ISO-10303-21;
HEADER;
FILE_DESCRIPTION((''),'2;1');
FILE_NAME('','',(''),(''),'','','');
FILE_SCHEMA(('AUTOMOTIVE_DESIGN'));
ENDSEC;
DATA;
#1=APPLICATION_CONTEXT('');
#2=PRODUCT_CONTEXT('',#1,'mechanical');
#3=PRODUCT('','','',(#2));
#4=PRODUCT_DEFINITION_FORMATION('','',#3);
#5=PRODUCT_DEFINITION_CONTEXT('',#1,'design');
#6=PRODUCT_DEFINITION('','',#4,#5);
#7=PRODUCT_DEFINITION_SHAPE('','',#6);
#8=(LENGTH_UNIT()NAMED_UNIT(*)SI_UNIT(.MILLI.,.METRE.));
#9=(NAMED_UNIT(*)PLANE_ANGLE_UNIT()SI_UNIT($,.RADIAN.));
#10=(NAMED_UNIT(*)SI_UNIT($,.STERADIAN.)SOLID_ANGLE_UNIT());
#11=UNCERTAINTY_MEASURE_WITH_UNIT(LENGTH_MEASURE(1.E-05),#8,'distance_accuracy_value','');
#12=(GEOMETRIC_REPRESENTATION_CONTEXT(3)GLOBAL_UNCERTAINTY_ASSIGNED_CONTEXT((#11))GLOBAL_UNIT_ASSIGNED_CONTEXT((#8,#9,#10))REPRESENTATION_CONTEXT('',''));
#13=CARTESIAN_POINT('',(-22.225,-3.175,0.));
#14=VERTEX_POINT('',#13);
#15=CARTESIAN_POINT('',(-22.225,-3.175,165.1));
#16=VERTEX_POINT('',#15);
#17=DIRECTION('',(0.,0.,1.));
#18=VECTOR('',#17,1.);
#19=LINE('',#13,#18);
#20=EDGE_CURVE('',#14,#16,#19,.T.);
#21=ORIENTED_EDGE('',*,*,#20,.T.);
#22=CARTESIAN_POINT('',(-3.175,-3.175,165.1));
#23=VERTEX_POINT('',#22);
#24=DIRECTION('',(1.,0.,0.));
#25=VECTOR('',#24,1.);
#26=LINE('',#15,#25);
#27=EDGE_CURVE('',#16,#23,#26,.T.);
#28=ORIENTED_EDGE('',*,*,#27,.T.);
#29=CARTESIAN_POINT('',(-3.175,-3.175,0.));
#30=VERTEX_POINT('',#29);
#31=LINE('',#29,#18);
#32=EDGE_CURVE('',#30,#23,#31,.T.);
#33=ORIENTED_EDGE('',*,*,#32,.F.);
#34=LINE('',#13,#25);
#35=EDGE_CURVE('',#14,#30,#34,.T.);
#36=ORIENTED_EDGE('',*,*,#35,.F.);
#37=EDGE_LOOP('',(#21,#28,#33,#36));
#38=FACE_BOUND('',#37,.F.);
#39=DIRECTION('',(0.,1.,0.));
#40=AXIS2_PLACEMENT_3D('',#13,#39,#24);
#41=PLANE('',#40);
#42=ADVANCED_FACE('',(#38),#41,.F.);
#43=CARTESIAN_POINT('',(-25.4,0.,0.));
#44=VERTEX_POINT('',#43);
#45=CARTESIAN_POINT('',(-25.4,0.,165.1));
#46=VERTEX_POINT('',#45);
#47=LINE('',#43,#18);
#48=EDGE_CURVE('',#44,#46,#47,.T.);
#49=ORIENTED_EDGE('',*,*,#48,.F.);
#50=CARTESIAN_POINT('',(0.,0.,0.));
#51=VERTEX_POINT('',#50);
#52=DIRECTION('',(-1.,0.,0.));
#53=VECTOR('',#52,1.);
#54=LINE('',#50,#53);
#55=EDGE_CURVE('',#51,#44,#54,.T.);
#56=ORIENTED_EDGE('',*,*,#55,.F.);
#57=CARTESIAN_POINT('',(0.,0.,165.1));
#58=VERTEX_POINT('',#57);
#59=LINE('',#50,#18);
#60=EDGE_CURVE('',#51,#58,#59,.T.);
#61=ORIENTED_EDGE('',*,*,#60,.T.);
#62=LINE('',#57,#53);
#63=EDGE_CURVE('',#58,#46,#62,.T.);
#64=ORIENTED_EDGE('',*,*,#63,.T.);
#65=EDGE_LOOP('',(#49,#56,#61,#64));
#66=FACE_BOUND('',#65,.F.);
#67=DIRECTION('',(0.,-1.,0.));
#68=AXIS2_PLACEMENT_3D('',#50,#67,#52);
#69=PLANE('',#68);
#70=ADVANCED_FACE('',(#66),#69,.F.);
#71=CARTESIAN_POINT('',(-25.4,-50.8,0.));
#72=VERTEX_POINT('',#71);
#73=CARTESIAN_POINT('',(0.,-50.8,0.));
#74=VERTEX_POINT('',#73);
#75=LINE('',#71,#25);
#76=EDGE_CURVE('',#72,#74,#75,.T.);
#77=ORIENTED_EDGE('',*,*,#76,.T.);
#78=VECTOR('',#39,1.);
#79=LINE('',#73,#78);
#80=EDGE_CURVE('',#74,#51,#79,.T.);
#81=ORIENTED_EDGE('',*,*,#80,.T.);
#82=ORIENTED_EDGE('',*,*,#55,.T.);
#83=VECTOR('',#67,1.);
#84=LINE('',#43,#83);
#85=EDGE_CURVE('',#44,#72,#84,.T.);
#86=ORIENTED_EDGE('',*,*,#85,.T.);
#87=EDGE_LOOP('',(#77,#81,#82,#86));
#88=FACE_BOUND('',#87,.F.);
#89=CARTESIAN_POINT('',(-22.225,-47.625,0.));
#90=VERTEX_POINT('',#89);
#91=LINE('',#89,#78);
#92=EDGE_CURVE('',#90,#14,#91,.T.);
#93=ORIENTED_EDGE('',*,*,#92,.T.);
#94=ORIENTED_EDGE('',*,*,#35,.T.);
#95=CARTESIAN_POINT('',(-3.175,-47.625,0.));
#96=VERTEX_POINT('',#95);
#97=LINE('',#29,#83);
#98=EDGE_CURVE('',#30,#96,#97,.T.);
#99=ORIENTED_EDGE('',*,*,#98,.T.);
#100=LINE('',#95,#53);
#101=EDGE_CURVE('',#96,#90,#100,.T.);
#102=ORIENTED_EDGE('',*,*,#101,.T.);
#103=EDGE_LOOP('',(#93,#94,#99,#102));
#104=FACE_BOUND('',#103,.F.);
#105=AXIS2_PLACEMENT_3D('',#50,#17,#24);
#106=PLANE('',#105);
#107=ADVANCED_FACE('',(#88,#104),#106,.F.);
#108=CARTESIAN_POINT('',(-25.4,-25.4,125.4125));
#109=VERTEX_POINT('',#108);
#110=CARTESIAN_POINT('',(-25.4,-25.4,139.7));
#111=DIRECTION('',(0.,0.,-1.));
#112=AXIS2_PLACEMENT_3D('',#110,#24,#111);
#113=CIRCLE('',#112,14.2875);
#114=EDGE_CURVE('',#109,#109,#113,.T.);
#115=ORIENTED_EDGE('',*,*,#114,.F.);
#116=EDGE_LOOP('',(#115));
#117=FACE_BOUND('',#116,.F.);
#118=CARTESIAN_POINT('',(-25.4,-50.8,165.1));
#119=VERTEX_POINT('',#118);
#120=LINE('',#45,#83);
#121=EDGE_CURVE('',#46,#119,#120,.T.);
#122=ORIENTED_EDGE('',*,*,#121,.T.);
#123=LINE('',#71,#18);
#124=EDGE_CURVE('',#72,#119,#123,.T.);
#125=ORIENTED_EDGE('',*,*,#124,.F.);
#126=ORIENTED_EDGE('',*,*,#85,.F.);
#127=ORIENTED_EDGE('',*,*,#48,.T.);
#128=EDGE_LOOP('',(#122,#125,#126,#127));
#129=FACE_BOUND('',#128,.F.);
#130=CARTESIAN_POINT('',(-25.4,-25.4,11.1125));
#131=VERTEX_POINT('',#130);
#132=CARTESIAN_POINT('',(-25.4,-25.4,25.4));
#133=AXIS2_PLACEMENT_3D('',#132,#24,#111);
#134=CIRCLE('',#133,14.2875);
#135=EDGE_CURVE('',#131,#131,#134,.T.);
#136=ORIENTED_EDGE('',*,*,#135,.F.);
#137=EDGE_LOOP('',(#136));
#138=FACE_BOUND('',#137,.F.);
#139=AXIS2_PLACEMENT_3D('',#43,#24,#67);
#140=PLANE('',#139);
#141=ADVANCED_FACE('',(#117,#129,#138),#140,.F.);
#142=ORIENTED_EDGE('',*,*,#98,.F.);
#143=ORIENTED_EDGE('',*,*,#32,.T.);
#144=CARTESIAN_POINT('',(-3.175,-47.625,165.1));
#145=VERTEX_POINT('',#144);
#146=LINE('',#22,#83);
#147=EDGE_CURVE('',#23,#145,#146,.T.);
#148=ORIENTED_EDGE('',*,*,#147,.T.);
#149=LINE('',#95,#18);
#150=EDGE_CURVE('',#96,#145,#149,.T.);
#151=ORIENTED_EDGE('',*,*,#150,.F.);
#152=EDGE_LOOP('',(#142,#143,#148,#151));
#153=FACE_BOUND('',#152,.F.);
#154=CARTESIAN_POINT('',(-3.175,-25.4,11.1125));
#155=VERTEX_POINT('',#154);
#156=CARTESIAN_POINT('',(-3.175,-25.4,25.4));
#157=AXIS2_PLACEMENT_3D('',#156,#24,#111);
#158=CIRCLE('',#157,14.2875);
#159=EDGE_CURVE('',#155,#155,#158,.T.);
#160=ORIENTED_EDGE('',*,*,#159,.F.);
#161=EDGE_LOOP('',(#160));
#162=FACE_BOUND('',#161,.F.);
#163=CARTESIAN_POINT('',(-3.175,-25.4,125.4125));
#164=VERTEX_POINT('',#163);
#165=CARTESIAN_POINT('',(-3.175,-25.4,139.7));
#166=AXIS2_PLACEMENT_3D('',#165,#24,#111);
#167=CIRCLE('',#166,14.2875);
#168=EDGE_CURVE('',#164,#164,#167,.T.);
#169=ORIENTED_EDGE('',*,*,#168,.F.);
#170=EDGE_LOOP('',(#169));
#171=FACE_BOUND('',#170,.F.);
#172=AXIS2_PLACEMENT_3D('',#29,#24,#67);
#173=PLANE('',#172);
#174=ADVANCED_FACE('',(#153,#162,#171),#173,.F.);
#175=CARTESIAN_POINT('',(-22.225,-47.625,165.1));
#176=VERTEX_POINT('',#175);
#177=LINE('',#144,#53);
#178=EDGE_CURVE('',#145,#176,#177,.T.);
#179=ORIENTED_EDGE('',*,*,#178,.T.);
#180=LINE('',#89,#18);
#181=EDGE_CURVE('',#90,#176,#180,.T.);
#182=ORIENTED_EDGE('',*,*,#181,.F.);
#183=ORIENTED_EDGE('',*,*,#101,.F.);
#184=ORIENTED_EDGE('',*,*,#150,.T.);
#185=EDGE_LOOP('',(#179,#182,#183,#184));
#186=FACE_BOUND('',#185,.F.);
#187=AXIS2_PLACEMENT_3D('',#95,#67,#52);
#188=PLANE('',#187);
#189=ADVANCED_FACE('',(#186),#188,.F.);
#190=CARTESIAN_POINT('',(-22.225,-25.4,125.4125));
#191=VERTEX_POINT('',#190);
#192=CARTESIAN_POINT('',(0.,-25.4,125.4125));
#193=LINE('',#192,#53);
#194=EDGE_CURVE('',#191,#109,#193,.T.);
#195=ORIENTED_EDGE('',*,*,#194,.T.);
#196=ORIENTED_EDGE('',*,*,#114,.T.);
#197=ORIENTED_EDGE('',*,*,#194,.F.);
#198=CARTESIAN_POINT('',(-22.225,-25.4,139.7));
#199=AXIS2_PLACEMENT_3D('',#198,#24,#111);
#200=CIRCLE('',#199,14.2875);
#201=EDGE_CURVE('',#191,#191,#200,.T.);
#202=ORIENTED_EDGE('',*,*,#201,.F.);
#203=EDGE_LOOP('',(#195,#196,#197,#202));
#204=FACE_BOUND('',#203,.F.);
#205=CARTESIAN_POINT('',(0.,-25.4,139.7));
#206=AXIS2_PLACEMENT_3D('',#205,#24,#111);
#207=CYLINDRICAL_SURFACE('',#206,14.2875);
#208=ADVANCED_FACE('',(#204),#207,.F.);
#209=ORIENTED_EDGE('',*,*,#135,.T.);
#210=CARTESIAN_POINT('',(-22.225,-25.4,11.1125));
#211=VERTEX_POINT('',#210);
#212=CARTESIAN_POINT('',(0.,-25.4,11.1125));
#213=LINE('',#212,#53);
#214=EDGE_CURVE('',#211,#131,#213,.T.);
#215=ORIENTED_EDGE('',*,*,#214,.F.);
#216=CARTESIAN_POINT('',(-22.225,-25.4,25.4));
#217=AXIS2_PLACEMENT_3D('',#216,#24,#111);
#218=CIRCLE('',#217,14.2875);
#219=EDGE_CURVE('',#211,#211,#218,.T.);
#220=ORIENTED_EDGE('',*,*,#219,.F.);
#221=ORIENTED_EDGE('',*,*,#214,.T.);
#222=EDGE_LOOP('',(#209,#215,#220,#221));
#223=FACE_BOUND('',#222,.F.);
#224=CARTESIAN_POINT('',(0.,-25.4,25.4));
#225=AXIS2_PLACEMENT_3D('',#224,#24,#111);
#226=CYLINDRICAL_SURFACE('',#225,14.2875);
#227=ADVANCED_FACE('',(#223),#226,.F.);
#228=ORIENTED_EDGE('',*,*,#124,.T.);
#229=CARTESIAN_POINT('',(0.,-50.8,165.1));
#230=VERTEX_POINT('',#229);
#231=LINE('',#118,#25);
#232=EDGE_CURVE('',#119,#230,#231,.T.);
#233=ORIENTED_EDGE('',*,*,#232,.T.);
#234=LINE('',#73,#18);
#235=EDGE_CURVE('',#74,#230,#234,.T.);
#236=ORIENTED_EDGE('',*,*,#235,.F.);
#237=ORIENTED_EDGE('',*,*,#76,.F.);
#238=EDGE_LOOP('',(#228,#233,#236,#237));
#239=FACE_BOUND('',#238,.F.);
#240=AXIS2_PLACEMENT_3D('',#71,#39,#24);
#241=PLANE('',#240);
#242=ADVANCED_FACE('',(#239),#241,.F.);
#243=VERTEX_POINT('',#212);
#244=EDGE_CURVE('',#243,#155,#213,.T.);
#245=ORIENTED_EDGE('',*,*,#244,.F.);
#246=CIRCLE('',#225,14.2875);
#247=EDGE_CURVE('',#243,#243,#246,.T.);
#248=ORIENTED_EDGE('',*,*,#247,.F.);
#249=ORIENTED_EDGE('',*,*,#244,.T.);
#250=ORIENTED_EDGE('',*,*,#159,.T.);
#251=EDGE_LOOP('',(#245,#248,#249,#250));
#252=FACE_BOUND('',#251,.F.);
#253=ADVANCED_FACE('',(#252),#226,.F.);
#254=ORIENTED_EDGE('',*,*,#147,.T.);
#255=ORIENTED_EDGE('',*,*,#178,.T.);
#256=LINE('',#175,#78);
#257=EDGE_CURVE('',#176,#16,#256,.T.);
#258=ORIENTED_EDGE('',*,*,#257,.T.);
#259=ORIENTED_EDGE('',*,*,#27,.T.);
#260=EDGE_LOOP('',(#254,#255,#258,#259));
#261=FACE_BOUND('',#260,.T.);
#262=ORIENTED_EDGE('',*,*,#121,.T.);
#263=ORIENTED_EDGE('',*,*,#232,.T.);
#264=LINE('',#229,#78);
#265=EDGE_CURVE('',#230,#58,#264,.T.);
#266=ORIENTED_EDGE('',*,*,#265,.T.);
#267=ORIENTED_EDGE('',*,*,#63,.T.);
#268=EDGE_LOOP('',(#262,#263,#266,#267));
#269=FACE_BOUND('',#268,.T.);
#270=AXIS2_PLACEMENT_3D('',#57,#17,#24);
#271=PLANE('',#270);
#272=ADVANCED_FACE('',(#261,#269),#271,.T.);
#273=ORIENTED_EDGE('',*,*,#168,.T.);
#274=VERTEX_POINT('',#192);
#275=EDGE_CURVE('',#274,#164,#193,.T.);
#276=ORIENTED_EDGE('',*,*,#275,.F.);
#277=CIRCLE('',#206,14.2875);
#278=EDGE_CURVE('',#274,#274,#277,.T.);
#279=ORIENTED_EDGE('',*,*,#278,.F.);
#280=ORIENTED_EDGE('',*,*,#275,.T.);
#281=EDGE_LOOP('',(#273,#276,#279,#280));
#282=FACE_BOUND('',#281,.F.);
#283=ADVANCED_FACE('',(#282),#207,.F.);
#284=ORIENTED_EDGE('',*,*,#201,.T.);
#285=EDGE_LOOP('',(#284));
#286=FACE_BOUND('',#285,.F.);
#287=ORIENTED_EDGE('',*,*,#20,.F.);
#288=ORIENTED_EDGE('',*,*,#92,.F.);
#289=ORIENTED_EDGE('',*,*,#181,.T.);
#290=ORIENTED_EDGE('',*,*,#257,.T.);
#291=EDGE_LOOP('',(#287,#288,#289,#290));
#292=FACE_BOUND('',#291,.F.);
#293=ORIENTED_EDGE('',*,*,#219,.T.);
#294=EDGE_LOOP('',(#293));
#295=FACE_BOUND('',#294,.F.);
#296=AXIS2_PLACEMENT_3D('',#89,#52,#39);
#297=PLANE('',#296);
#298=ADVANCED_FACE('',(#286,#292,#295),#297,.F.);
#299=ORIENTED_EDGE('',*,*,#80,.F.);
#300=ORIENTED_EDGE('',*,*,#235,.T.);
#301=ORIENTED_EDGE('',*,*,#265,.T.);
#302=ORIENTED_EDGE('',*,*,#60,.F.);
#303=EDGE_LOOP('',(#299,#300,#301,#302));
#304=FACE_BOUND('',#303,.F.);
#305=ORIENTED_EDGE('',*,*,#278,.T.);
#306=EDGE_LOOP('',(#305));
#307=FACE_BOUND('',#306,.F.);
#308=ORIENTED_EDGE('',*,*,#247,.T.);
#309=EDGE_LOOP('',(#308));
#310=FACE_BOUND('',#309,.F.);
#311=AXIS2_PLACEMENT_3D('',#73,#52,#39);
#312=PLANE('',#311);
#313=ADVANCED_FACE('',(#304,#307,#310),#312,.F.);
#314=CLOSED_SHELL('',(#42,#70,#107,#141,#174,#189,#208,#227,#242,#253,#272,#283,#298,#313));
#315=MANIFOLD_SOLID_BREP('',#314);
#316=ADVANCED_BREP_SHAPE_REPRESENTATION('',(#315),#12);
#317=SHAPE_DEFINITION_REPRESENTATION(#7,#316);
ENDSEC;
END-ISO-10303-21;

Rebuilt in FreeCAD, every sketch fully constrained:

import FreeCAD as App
import Part
import Sketcher

V = App.Vector
Q = App.Units.Quantity

doc = App.newDocument("Part")
body = doc.addObject("PartDesign::Body", "Body")

# Sketch on XY plane
sketch1 = doc.addObject("Sketcher::SketchObject", "Sketch")
body.addObject(sketch1)
sketch1.AttachmentSupport = (doc.XY_Plane, [""])
sketch1.MapMode = "FlatFace"
sketch1.addGeometry(Part.LineSegment(V(0, -51, 0), V(0, 0, 0)), False)
sketch1.addGeometry(Part.LineSegment(V(0, 0, 0), V(-25, 0, 0)), False)
sketch1.addGeometry(Part.LineSegment(V(-25, 0, 0), V(-25, -51, 0)), False)
sketch1.addGeometry(Part.LineSegment(V(-25, -51, 0), V(0, -51, 0)), False)
sketch1.addGeometry(Part.LineSegment(V(-22, -48, 0), V(-22, -3, 0)), False)
sketch1.addGeometry(Part.LineSegment(V(-22, -3, 0), V(-3, -3, 0)), False)
sketch1.addGeometry(Part.LineSegment(V(-3, -3, 0), V(-3, -48, 0)), False)
sketch1.addGeometry(Part.LineSegment(V(-3, -48, 0), V(-22, -48, 0)), False)
sketch1.addConstraint(Sketcher.Constraint("Coincident", 0, 2, 1, 1))
sketch1.addConstraint(Sketcher.Constraint("Coincident", 1, 2, 2, 1))
sketch1.addConstraint(Sketcher.Constraint("Coincident", 2, 2, 3, 1))
sketch1.addConstraint(Sketcher.Constraint("Coincident", 3, 2, 0, 1))
sketch1.addConstraint(Sketcher.Constraint("Coincident", 4, 2, 5, 1))
sketch1.addConstraint(Sketcher.Constraint("Coincident", 5, 2, 6, 1))
sketch1.addConstraint(Sketcher.Constraint("Coincident", 6, 2, 7, 1))
sketch1.addConstraint(Sketcher.Constraint("Coincident", 7, 2, 4, 1))
sketch1.addConstraint(Sketcher.Constraint("Vertical", 0))
sketch1.addConstraint(Sketcher.Constraint("Horizontal", 1))
sketch1.addConstraint(Sketcher.Constraint("Vertical", 2))
sketch1.addConstraint(Sketcher.Constraint("Horizontal", 3))
sketch1.addConstraint(Sketcher.Constraint("Vertical", 4))
sketch1.addConstraint(Sketcher.Constraint("Horizontal", 5))
sketch1.addConstraint(Sketcher.Constraint("Vertical", 6))
sketch1.addConstraint(Sketcher.Constraint("Horizontal", 7))
sketch1.addConstraint(Sketcher.Constraint("Coincident", 0, 2, -1, 1))
sketch1.addConstraint(Sketcher.Constraint("DistanceX", 1, 2, 1, 1, Q("1 in")))
sketch1.addConstraint(Sketcher.Constraint("DistanceY", 0, 1, 0, 2, Q("2 in")))
sketch1.addConstraint(Sketcher.Constraint("DistanceY", 4, 2, -1, 1, Q("0.125 in")))
sketch1.addConstraint(Sketcher.Constraint("DistanceX", 5, 2, -1, 1, Q("0.125 in")))
sketch1.addConstraint(Sketcher.Constraint("DistanceX", 1, 2, 4, 2, Q("0.125 in")))
sketch1.addConstraint(Sketcher.Constraint("DistanceY", 3, 2, 6, 2, Q("0.125 in")))
pad1 = doc.addObject("PartDesign::Pad", "Pad")
body.addObject(pad1)
pad1.Profile = sketch1
pad1.Length = Q("6.5 in")

# Sketch on YZ plane
sketch2 = doc.addObject("Sketcher::SketchObject", "Sketch001")
body.addObject(sketch2)
sketch2.AttachmentSupport = (doc.YZ_Plane, [""])
sketch2.MapMode = "FlatFace"
sketch2.addGeometry(Part.Circle(V(-25, 25, 0), V(0, 0, 1), 14), False)
sketch2.addGeometry(Part.Circle(V(-25, 140, 0), V(0, 0, 1), 14), False)
sketch2.addConstraint(Sketcher.Constraint("Equal", 0, 1))
sketch2.addConstraint(Sketcher.Constraint("Vertical", 0, 3, 1, 3))
sketch2.addConstraint(Sketcher.Constraint("Diameter", 0, Q("1.125 in")))
sketch2.addConstraint(Sketcher.Constraint("DistanceX", 0, 3, -1, 1, Q("1 in")))
sketch2.addConstraint(Sketcher.Constraint("DistanceY", -1, 1, 0, 3, Q("1 in")))
sketch2.addConstraint(Sketcher.Constraint("DistanceY", -1, 1, 1, 3, Q("5.5 in")))
pocket1 = doc.addObject("PartDesign::Pocket", "Pocket")
body.addObject(pocket1)
pocket1.Profile = sketch2
pocket1.Length = Q("7 in")

doc.recompute()
